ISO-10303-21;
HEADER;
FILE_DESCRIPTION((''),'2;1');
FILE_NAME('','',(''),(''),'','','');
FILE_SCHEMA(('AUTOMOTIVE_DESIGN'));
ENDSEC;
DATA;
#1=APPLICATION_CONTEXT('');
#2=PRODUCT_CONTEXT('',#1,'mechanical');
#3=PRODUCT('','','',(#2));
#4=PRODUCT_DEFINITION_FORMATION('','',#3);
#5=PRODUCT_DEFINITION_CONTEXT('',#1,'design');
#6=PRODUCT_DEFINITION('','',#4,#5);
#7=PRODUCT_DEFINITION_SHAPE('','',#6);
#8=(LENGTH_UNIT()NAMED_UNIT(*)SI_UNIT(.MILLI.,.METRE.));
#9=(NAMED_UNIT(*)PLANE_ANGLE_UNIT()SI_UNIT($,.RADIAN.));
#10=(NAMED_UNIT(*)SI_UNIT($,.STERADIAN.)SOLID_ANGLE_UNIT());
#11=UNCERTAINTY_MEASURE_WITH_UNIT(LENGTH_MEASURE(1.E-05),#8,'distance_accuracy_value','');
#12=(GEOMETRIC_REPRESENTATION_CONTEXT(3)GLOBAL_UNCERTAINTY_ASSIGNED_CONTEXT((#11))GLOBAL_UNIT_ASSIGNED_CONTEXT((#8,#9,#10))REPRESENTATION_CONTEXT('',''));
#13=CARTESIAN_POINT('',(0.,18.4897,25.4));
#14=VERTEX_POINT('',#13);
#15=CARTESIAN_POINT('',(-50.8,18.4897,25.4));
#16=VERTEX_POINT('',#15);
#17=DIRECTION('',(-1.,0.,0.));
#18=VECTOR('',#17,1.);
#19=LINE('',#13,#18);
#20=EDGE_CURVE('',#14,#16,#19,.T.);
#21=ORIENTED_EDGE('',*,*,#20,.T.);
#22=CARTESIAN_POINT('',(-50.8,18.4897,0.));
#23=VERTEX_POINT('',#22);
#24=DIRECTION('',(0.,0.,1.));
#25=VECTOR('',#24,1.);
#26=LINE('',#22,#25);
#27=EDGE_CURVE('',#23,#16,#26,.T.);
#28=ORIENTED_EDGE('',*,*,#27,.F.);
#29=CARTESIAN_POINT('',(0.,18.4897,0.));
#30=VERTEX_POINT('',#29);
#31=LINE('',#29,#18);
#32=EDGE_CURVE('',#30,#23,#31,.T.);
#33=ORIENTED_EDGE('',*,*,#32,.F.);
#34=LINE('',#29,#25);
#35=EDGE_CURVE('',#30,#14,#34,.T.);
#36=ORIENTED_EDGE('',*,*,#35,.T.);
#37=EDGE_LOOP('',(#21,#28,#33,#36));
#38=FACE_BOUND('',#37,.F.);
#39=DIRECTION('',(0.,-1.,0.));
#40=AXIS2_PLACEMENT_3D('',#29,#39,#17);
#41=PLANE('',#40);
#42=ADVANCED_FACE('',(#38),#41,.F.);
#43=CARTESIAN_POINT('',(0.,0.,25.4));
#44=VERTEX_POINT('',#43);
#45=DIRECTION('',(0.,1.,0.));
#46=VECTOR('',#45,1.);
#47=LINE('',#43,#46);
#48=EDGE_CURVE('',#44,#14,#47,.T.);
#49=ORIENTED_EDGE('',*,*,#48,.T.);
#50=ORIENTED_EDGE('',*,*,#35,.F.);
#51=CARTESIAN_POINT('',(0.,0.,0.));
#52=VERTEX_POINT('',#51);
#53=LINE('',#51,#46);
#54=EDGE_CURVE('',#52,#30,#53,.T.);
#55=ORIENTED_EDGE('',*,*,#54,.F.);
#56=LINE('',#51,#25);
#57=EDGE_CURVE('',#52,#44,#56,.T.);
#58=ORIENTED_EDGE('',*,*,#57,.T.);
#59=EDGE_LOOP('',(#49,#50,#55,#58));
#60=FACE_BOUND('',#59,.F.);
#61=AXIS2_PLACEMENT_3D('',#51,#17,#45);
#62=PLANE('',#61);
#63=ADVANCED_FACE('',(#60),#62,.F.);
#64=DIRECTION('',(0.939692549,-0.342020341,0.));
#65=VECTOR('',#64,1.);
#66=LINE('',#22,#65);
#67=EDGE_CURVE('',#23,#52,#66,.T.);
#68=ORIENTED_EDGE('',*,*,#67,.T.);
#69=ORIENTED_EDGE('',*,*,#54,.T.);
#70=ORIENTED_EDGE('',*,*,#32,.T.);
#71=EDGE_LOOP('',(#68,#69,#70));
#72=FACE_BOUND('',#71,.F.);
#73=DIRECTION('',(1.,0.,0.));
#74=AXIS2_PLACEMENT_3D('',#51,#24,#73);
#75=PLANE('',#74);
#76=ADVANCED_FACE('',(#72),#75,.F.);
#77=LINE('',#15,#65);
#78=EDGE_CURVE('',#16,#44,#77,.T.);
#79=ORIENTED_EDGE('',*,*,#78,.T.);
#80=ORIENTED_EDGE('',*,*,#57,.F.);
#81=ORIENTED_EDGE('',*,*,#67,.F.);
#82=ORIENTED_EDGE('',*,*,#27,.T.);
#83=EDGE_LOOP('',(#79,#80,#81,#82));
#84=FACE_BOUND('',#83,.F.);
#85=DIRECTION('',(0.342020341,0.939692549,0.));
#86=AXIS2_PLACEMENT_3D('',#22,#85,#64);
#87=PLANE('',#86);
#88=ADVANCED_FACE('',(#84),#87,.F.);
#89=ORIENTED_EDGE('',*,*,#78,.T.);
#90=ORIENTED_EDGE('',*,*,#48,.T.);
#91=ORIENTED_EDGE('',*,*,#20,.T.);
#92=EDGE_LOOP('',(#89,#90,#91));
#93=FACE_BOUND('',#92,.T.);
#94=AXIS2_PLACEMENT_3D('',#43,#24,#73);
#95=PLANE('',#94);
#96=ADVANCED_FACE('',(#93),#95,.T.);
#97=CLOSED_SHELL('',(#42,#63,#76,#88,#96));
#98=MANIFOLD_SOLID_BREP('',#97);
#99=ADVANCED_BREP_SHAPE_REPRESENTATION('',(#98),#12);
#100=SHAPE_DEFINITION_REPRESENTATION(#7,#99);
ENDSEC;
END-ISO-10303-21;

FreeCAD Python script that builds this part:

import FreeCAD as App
import Part
import Sketcher
from FreeCAD import Vector
Q = App.Units.Quantity


def add_polygon(sketch, points):
    """Adds a closed chain of lines whose ends are joined by coincident constraints."""
    first, n = sketch.GeometryCount, len(points)
    for a, b in zip(points, points[1:] + points[:1]):
        sketch.addGeometry(Part.LineSegment(App.Vector(*a, 0), App.Vector(*b, 0)), False)
    for i in range(n):
        sketch.addConstraint(Sketcher.Constraint("Coincident", first + i, 2, first + (i + 1) % n, 1))

doc = App.newDocument("Part")
params = doc.addObject("Spreadsheet::Sheet", "Params")
for row, (alias, value) in enumerate([
    ("sketch1_width", "2 in"),
    ("pad1_length", "1 in"),
], start=1):
    params.set(f"A{row}", alias)
    params.set(f"B{row}", "=" + value)
    params.setAlias(f"B{row}", alias)

body = doc.addObject("PartDesign::Body", "Body")

# Sketch on XY plane
sketch1 = doc.addObject("Sketcher::SketchObject", "Sketch")
body.addObject(sketch1)
sketch1.AttachmentSupport = (doc.XY_Plane, [""])
sketch1.MapMode = "FlatFace"
add_polygon(sketch1, [(-50.8, 18.4897), (0, 0), (0, 18.4897)])  # lines 0-2
sketch1.addConstraint([
    Sketcher.Constraint("Vertical", 1),
    Sketcher.Constraint("Horizontal", 2),
    Sketcher.Constraint("Coincident", 0, 2, -1, 1),
    Sketcher.Constraint("DistanceX", 2, 2, 2, 1, Q("2 in")),
    Sketcher.Constraint("Angle", 0, Q("-20 deg")),
])
sketch1.setExpression("Constraints[6]", "Params.sketch1_width")
pad1 = doc.addObject("PartDesign::Pad", "Pad")
body.addObject(pad1)
pad1.Profile = sketch1
pad1.setExpression("Length", "Params.pad1_length")

doc.recompute()
